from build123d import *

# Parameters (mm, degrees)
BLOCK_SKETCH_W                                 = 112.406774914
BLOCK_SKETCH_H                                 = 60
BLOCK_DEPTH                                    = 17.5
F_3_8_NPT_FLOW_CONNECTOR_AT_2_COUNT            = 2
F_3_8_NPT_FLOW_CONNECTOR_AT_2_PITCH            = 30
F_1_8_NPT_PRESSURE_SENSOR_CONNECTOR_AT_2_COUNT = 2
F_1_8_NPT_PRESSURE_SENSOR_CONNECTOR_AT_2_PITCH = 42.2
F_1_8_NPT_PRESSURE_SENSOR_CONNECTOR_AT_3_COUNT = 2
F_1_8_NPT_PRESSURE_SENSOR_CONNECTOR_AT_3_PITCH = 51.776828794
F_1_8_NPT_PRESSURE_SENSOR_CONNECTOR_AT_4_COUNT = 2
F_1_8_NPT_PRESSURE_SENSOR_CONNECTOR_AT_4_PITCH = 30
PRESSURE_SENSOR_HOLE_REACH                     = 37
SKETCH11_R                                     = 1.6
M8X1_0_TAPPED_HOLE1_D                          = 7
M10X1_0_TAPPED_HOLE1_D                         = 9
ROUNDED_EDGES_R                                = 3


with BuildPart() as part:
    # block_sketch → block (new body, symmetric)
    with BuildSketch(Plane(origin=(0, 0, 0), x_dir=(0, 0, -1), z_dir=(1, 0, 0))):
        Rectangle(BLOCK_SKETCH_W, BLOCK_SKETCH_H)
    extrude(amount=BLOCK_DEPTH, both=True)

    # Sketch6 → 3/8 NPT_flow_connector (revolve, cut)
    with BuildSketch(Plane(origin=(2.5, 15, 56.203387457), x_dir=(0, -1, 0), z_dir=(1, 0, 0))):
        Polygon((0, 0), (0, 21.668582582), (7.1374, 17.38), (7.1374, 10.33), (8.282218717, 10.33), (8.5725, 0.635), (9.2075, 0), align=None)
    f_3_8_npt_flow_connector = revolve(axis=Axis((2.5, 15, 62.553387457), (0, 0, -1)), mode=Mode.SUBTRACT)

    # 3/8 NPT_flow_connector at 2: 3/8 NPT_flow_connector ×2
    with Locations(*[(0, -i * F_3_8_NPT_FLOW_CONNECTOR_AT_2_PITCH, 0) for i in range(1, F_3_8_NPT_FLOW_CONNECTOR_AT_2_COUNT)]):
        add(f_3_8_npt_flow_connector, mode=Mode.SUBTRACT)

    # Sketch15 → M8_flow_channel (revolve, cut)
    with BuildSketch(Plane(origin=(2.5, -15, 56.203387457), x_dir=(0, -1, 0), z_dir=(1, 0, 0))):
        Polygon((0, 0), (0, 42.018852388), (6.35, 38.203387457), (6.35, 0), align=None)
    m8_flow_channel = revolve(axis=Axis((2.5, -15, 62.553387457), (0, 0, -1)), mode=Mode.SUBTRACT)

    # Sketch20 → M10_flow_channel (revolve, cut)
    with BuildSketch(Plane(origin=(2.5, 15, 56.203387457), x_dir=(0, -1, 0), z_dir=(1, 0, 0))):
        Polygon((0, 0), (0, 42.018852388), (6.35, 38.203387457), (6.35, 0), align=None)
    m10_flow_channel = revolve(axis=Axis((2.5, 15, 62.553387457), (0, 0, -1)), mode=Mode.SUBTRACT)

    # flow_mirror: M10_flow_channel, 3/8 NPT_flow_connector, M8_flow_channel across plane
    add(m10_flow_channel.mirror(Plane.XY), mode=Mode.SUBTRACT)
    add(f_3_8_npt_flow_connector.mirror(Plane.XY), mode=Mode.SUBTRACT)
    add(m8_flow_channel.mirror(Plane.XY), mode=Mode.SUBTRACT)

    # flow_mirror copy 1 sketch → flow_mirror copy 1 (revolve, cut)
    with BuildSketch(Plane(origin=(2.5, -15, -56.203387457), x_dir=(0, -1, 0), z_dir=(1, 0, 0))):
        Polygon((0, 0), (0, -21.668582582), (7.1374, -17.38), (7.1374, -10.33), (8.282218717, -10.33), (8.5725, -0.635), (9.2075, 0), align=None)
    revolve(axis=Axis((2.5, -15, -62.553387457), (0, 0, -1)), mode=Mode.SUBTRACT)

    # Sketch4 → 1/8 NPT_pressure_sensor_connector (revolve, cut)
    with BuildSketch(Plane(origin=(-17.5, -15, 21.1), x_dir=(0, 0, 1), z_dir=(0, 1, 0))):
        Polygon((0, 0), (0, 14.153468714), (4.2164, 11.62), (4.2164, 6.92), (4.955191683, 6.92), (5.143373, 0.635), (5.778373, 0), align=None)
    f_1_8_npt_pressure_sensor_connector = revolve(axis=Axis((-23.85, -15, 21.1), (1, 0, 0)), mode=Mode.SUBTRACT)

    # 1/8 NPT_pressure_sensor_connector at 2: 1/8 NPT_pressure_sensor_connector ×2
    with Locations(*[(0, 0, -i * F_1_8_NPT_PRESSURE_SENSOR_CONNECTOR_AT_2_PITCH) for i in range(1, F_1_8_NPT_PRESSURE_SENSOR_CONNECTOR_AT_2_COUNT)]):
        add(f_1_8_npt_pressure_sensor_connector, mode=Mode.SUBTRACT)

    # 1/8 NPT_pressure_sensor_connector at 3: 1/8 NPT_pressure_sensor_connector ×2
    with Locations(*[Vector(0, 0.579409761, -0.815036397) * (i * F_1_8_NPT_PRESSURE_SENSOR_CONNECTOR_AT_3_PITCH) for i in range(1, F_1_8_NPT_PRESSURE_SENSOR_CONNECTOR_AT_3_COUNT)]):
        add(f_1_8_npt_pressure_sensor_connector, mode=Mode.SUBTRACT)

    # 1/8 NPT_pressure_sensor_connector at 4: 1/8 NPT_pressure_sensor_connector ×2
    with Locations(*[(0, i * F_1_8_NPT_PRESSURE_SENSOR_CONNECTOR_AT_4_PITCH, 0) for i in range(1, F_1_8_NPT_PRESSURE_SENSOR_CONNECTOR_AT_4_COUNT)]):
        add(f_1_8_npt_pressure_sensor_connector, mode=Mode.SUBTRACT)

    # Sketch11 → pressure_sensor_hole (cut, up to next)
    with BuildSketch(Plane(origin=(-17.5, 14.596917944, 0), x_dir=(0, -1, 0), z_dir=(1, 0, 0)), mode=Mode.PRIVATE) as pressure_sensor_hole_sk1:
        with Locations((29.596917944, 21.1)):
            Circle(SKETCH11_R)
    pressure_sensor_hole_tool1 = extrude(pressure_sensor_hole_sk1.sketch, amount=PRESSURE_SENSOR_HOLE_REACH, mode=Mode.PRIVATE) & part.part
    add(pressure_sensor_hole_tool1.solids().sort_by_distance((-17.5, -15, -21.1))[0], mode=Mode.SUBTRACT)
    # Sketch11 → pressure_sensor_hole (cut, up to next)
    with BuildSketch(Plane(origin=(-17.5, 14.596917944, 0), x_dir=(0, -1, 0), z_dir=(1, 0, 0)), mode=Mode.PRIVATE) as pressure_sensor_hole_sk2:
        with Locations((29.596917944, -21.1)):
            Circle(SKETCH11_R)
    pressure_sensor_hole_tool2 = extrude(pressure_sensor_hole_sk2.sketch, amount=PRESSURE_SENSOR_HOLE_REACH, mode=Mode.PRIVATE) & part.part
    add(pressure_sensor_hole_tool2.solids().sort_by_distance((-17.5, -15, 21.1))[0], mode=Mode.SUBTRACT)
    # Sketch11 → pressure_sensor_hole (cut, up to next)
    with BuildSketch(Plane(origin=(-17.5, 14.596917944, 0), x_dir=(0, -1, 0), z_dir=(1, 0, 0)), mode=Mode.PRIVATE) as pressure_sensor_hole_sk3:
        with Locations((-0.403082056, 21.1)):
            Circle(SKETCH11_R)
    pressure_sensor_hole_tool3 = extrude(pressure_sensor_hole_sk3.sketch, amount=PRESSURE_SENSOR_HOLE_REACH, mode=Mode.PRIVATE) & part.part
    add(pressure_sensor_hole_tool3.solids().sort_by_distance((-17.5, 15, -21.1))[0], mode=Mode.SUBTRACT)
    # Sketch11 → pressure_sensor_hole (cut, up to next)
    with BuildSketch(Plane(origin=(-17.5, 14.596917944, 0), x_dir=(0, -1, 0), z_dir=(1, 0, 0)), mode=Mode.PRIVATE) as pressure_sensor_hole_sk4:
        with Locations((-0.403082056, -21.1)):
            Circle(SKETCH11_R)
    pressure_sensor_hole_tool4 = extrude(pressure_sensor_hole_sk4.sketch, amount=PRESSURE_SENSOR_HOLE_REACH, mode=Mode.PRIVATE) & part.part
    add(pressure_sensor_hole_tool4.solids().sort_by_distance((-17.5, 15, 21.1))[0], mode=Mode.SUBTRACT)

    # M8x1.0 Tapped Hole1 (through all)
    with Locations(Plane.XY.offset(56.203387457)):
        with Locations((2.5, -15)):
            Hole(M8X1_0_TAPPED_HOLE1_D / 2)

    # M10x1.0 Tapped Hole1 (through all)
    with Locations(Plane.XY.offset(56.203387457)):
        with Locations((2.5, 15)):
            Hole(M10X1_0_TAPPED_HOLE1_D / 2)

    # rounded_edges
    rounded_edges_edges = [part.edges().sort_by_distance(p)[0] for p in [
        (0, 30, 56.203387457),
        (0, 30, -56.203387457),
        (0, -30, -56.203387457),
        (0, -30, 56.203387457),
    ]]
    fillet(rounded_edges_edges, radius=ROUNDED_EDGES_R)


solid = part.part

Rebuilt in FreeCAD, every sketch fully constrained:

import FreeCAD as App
import Part
import Sketcher
from FreeCAD import Vector
Q = App.Units.Quantity


def edges_at(feature, points):
    """Names of the edges that pass closest to the given points."""
    edges = feature.Shape.Edges
    near = lambda p: min(range(len(edges)), key=lambda i: edges[i].distToShape(Part.Vertex(*p))[0])
    return sorted({f"Edge{near(p) + 1}" for p in points})

doc = App.newDocument("Part")
body = doc.addObject("PartDesign::Body", "Body")

sketch1 = body.newObject("Sketcher::SketchObject", "Sketch")
sketch1.AttachmentSupport = (doc.getObject("YZ_Plane"), [""])
sketch1.MapMode = "FlatFace"
sketch1.addGeometry([
    Part.LineSegment(Vector(30, 56, 0), Vector(-30, 56, 0)),
    Part.LineSegment(Vector(-30, 56, 0), Vector(-30, -56, 0)),
    Part.LineSegment(Vector(-30, -56, 0), Vector(30, -56, 0)),
    Part.LineSegment(Vector(30, -56, 0), Vector(30, 56, 0)),
], False)
sketch1.addConstraint([
    Sketcher.Constraint("Coincident", 0, 2, 1, 1),
    Sketcher.Constraint("Coincident", 1, 2, 2, 1),
    Sketcher.Constraint("Coincident", 2, 2, 3, 1),
    Sketcher.Constraint("Coincident", 3, 2, 0, 1),
    Sketcher.Constraint("Horizontal", 0),
    Sketcher.Constraint("Vertical", 1),
    Sketcher.Constraint("Horizontal", 2),
    Sketcher.Constraint("Vertical", 3),
    Sketcher.Constraint("Symmetric", 0, 2, 2, 2, -1, 1),
    Sketcher.Constraint("DistanceX", 0, 2, 0, 1, Q("60 mm")),
    Sketcher.Constraint("DistanceY", 1, 2, 1, 1, Q("112.406775 mm")),
])
pad1 = body.newObject("PartDesign::Pad", "Pad")
pad1.Profile = sketch1
pad1.Length = 35
pad1.Midplane = True

sketch2 = body.newObject("Sketcher::SketchObject", "Sketch001")
sketch2.AttachmentSupport = (doc.getObject("YZ_Plane"), [""])
sketch2.MapMode = "FlatFace"
sketch2.AttachmentOffset = App.Placement(Vector(0, 0, 2.5), App.Rotation())
sketch2.addGeometry([
    Part.LineSegment(Vector(15, 34.5, 0), Vector(15, 56.2, 0)),
    Part.LineSegment(Vector(15, 56.2, 0), Vector(5.8, 56.2, 0)),
    Part.LineSegment(Vector(5.8, 56.2, 0), Vector(6.4, 55.6, 0)),
    Part.LineSegment(Vector(6.4, 55.6, 0), Vector(6.7, 45.9, 0)),
    Part.LineSegment(Vector(6.7, 45.9, 0), Vector(7.9, 45.9, 0)),
    Part.LineSegment(Vector(7.9, 45.9, 0), Vector(7.9, 38.8, 0)),
    Part.LineSegment(Vector(7.9, 38.8, 0), Vector(15, 34.5, 0)),
], False)
sketch2.addGeometry(Part.LineSegment(Vector(15, 56.2, 0), Vector(15, 34.5, 0)), True)
sketch2.addConstraint([
    Sketcher.Constraint("Coincident", 0, 2, 1, 1),
    Sketcher.Constraint("Coincident", 1, 2, 2, 1),
    Sketcher.Constraint("Coincident", 2, 2, 3, 1),
    Sketcher.Constraint("Coincident", 3, 2, 4, 1),
    Sketcher.Constraint("Coincident", 4, 2, 5, 1),
    Sketcher.Constraint("Coincident", 5, 2, 6, 1),
    Sketcher.Constraint("Coincident", 6, 2, 0, 1),
    Sketcher.Constraint("Vertical", 0),
    Sketcher.Constraint("Horizontal", 1),
    Sketcher.Constraint("Horizontal", 4),
    Sketcher.Constraint("Vertical", 5),
    Sketcher.Constraint("Vertical", 7),
    Sketcher.Constraint("Coincident", 7, 1, 0, 2),
    Sketcher.Constraint("Equal", 0, 7),
    Sketcher.Constraint("Angle", 2, Q("-45 deg")),
    Sketcher.Constraint("Angle", 6, Q("-31 deg")),
    Sketcher.Constraint("DistanceX", -1, 1, 0, 2, Q("15 mm")),
    Sketcher.Constraint("DistanceY", 5, 2, 5, 1, Q("7.05 mm")),
    Sketcher.Constraint("DistanceY", 3, 2, 1, 2, Q("10.33 mm")),
    Sketcher.Constraint("DistanceX", 1, 2, 1, 1, Q("9.2075 mm")),
    Sketcher.Constraint("DistanceX", 1, 2, 2, 2, Q("0.635 mm")),
    Sketcher.Constraint("DistanceX", 4, 1, 4, 2, Q("1.144819 mm")),
    Sketcher.Constraint("DistanceX", -1, 1, 4, 2, Q("7.8626 mm")),
    Sketcher.Constraint("DistanceY", -1, 1, 0, 2, Q("56.203387 mm")),
])
groove = body.newObject("PartDesign::Groove", "Groove")
groove.Profile = sketch2
groove.ReferenceAxis = (sketch2, ["Axis0"])
groove.Angle = 360
doc.recompute()

linearpattern = body.newObject("PartDesign::LinearPattern", "LinearPattern")
linearpattern.Originals = [groove]
linearpattern.Direction = (doc.getObject("Y_Axis"), [""])
linearpattern.Mode = "offset"
linearpattern.Offset = 30
linearpattern.Occurrences = 2
linearpattern.Reversed = True
body.Tip = linearpattern

sketch3 = body.newObject("Sketcher::SketchObject", "Sketch002")
sketch3.AttachmentSupport = (doc.getObject("YZ_Plane"), [""])
sketch3.MapMode = "FlatFace"
sketch3.AttachmentOffset = App.Placement(Vector(0, 0, 2.5), App.Rotation())
sketch3.addGeometry([
    Part.LineSegment(Vector(-15, 14, 0), Vector(-15, 56, 0)),
    Part.LineSegment(Vector(-15, 56, 0), Vector(-21, 56, 0)),
    Part.LineSegment(Vector(-21, 56, 0), Vector(-21, 18, 0)),
    Part.LineSegment(Vector(-21, 18, 0), Vector(-15, 14, 0)),
], False)
sketch3.addGeometry(Part.LineSegment(Vector(-15, 56, 0), Vector(-15, 14, 0)), True)
sketch3.addConstraint([
    Sketcher.Constraint("Coincident", 0, 2, 1, 1),
    Sketcher.Constraint("Coincident", 1, 2, 2, 1),
    Sketcher.Constraint("Coincident", 2, 2, 3, 1),
    Sketcher.Constraint("Coincident", 3, 2, 0, 1),
    Sketcher.Constraint("Vertical", 0),
    Sketcher.Constraint("Horizontal", 1),
    Sketcher.Constraint("Vertical", 2),
    Sketcher.Constraint("Vertical", 4),
    Sketcher.Constraint("Coincident", 4, 1, 0, 2),
    Sketcher.Constraint("Equal", 0, 4),
    Sketcher.Constraint("Angle", 3, Q("-31 deg")),
    Sketcher.Constraint("DistanceX", 0, 2, -1, 1, Q("15 mm")),
    Sketcher.Constraint("DistanceY", -1, 1, 2, 2, Q("18 mm")),
    Sketcher.Constraint("DistanceX", 1, 2, 1, 1, Q("6.35 mm")),
    Sketcher.Constraint("DistanceY", 0, 1, 0, 2, Q("42.018852 mm")),
])
groove2 = body.newObject("PartDesign::Groove", "Groove001")
groove2.Profile = sketch3
groove2.ReferenceAxis = (sketch3, ["Axis0"])
groove2.Angle = 360

sketch4 = body.newObject("Sketcher::SketchObject", "Sketch003")
sketch4.AttachmentSupport = (doc.getObject("YZ_Plane"), [""])
sketch4.MapMode = "FlatFace"
sketch4.AttachmentOffset = App.Placement(Vector(0, 0, 2.5), App.Rotation())
sketch4.addGeometry([
    Part.LineSegment(Vector(15, 14, 0), Vector(15, 56, 0)),
    Part.LineSegment(Vector(15, 56, 0), Vector(9, 56, 0)),
    Part.LineSegment(Vector(9, 56, 0), Vector(9, 18, 0)),
    Part.LineSegment(Vector(9, 18, 0), Vector(15, 14, 0)),
], False)
sketch4.addGeometry(Part.LineSegment(Vector(15, 56, 0), Vector(15, 14, 0)), True)
sketch4.addConstraint([
    Sketcher.Constraint("Coincident", 0, 2, 1, 1),
    Sketcher.Constraint("Coincident", 1, 2, 2, 1),
    Sketcher.Constraint("Coincident", 2, 2, 3, 1),
    Sketcher.Constraint("Coincident", 3, 2, 0, 1),
    Sketcher.Constraint("Vertical", 0),
    Sketcher.Constraint("Horizontal", 1),
    Sketcher.Constraint("Vertical", 2),
    Sketcher.Constraint("Vertical", 4),
    Sketcher.Constraint("Coincident", 4, 1, 0, 2),
    Sketcher.Constraint("Equal", 0, 4),
    Sketcher.Constraint("Angle", 3, Q("-31 deg")),
    Sketcher.Constraint("DistanceX", -1, 1, 0, 2, Q("15 mm")),
    Sketcher.Constraint("DistanceY", -1, 1, 2, 2, Q("18 mm")),
    Sketcher.Constraint("DistanceX", 1, 2, 1, 1, Q("6.35 mm")),
    Sketcher.Constraint("DistanceY", 0, 1, 0, 2, Q("42.018852 mm")),
])
groove3 = body.newObject("PartDesign::Groove", "Groove002")
groove3.Profile = sketch4
groove3.ReferenceAxis = (sketch4, ["Axis0"])
groove3.Angle = 360
doc.recompute()

mirrored = body.newObject("PartDesign::Mirrored", "Mirrored")
mirrored.Originals = [groove3, groove, groove2]
mirrored.MirrorPlane = (doc.getObject("XY_Plane"), [""])
body.Tip = mirrored

sketch5 = body.newObject("Sketcher::SketchObject", "Sketch004")
sketch5.AttachmentSupport = (doc.getObject("YZ_Plane"), [""])
sketch5.MapMode = "FlatFace"
sketch5.AttachmentOffset = App.Placement(Vector(0, 0, 2.5), App.Rotation())
sketch5.addGeometry([
    Part.LineSegment(Vector(-15, -56.2, 0), Vector(-15, -34.5, 0)),
    Part.LineSegment(Vector(-15, -34.5, 0), Vector(-22.1, -38.8, 0)),
    Part.LineSegment(Vector(-22.1, -38.8, 0), Vector(-22.1, -45.9, 0)),
    Part.LineSegment(Vector(-22.1, -45.9, 0), Vector(-23.3, -45.9, 0)),
    Part.LineSegment(Vector(-23.3, -45.9, 0), Vector(-23.6, -55.6, 0)),
    Part.LineSegment(Vector(-23.6, -55.6, 0), Vector(-24.2, -56.2, 0)),
    Part.LineSegment(Vector(-24.2, -56.2, 0), Vector(-15, -56.2, 0)),
], False)
sketch5.addGeometry(Part.LineSegment(Vector(-15, -34.5, 0), Vector(-15, -56.2, 0)), True)
sketch5.addConstraint([
    Sketcher.Constraint("Coincident", 0, 2, 1, 1),
    Sketcher.Constraint("Coincident", 1, 2, 2, 1),
    Sketcher.Constraint("Coincident", 2, 2, 3, 1),
    Sketcher.Constraint("Coincident", 3, 2, 4, 1),
    Sketcher.Constraint("Coincident", 4, 2, 5, 1),
    Sketcher.Constraint("Coincident", 5, 2, 6, 1),
    Sketcher.Constraint("Coincident", 6, 2, 0, 1),
    Sketcher.Constraint("Vertical", 0),
    Sketcher.Constraint("Vertical", 2),
    Sketcher.Constraint("Horizontal", 3),
    Sketcher.Constraint("Horizontal", 6),
    Sketcher.Constraint("Vertical", 7),
    Sketcher.Constraint("Coincident", 7, 1, 0, 2),
    Sketcher.Constraint("Horizontal", 5, 2, 7, 2),
    Sketcher.Constraint("Angle", 1, Q("-149 deg")),
    Sketcher.Constraint("Angle", 5, Q("-135 deg")),
    Sketcher.Constraint("DistanceX", 0, 2, -1, 1, Q("15 mm")),
    Sketcher.Constraint("DistanceY", 2, 2, 2, 1, Q("7.05 mm")),
    Sketcher.Constraint("DistanceY", 5, 2, 3, 2, Q("10.33 mm")),
    Sketcher.Constraint("DistanceX", 6, 1, 6, 2, Q("9.2075 mm")),
    Sketcher.Constraint("DistanceY", 4, 2, 3, 2, Q("9.695 mm")),
    Sketcher.Constraint("DistanceX", 3, 2, 3, 1, Q("1.144819 mm")),
    Sketcher.Constraint("DistanceX", 1, 2, -1, 1, Q("22.1374 mm")),
    Sketcher.Constraint("DistanceY", 0, 2, -1, 1, Q("34.534805 mm")),
])
groove4 = body.newObject("PartDesign::Groove", "Groove003")
groove4.Profile = sketch5
groove4.ReferenceAxis = (sketch5, ["Axis0"])
groove4.Angle = 360

sketch6 = body.newObject("Sketcher::SketchObject", "Sketch005")
sketch6.AttachmentSupport = (doc.getObject("XZ_Plane"), [""])
sketch6.MapMode = "FlatFace"
sketch6.AttachmentOffset = App.Placement(Vector(0, 0, 15), App.Rotation())
sketch6.addGeometry([
    Part.LineSegment(Vector(-3.3, 21.1, 0), Vector(-17.5, 21.1, 0)),
    Part.LineSegment(Vector(-17.5, 21.1, 0), Vector(-17.5, 26.9, 0)),
    Part.LineSegment(Vector(-17.5, 26.9, 0), Vector(-16.9, 26.2, 0)),
    Part.LineSegment(Vector(-16.9, 26.2, 0), Vector(-10.6, 26.1, 0)),
    Part.LineSegment(Vector(-10.6, 26.1, 0), Vector(-10.6, 25.3, 0)),
    Part.LineSegment(Vector(-10.6, 25.3, 0), Vector(-5.9, 25.3, 0)),
    Part.LineSegment(Vector(-5.9, 25.3, 0), Vector(-3.3, 21.1, 0)),
], False)
sketch6.addGeometry(Part.LineSegment(Vector(-17.5, 21.1, 0), Vector(-3.3, 21.1, 0)), True)
sketch6.addConstraint([
    Sketcher.Constraint("Coincident", 0, 2, 1, 1),
    Sketcher.Constraint("Coincident", 1, 2, 2, 1),
    Sketcher.Constraint("Coincident", 2, 2, 3, 1),
    Sketcher.Constraint("Coincident", 3, 2, 4, 1),
    Sketcher.Constraint("Coincident", 4, 2, 5, 1),
    Sketcher.Constraint("Coincident", 5, 2, 6, 1),
    Sketcher.Constraint("Coincident", 6, 2, 0, 1),
    Sketcher.Constraint("Horizontal", 0),
    Sketcher.Constraint("Vertical", 1),
    Sketcher.Constraint("Vertical", 4),
    Sketcher.Constraint("Horizontal", 5),
    Sketcher.Constraint("Horizontal", 7),
    Sketcher.Constraint("Coincident", 7, 1, 0, 2),
    Sketcher.Constraint("Equal", 0, 7),
    Sketcher.Constraint("Angle", 2, Q("-45 deg")),
    Sketcher.Constraint("Angle", 6, Q("-59 deg")),
    Sketcher.Constraint("DistanceX", 5, 1, 5, 2, Q("4.7 mm")),
    Sketcher.Constraint("DistanceX", 0, 2, -1, 1, Q("17.5 mm")),
    Sketcher.Constraint("DistanceY", -1, 1, 0, 2, Q("21.1 mm")),
    Sketcher.Constraint("DistanceX", 3, 2, -1, 1, Q("10.58 mm")),
    Sketcher.Constraint("DistanceX", 2, 2, -1, 1, Q("16.865 mm")),
    Sketcher.Constraint("DistanceX", 0, 2, 0, 1, Q("14.153469 mm")),
    Sketcher.Constraint("DistanceY", 4, 2, 4, 1, Q("0.738792 mm")),
    Sketcher.Constraint("DistanceY", 1, 1, 1, 2, Q("5.778373 mm")),
])
groove5 = body.newObject("PartDesign::Groove", "Groove004")
groove5.Profile = sketch6
groove5.ReferenceAxis = (sketch6, ["Axis0"])
groove5.Angle = 360
doc.recompute()

linearpattern2 = body.newObject("PartDesign::LinearPattern", "LinearPattern001")
linearpattern2.Originals = [groove5]
linearpattern2.Direction = (doc.getObject("Z_Axis"), [""])
linearpattern2.Mode = "offset"
linearpattern2.Offset = 42.2
linearpattern2.Occurrences = 2
linearpattern2.Reversed = True
body.Tip = linearpattern2
doc.recompute()

datumline = body.newObject("PartDesign::Line", "DatumLine")
datumline.Placement = App.Placement(Vector(0, 0, 0), App.Rotation(Vector(0, 0, 1), Vector(0, 0.579409761, -0.815036397)))
linearpattern3 = body.newObject("PartDesign::LinearPattern", "LinearPattern002")
linearpattern3.Originals = [groove5]
linearpattern3.Direction = (datumline, [""])
linearpattern3.Mode = "offset"
linearpattern3.Offset = 51.776829
linearpattern3.Occurrences = 2
body.Tip = linearpattern3
doc.recompute()

linearpattern4 = body.newObject("PartDesign::LinearPattern", "LinearPattern003")
linearpattern4.Originals = [groove5]
linearpattern4.Direction = (doc.getObject("Y_Axis"), [""])
linearpattern4.Mode = "offset"
linearpattern4.Offset = 30
linearpattern4.Occurrences = 2
body.Tip = linearpattern4

sketch7 = body.newObject("Sketcher::SketchObject", "Sketch006")
sketch7.AttachmentSupport = (doc.getObject("YZ_Plane"), [""])
sketch7.MapMode = "FlatFace"
sketch7.AttachmentOffset = App.Placement(Vector(0, 0, -17.5), App.Rotation())
sketch7.addGeometry(Part.Circle(Vector(-15, -21.1, 0), Vector(0, 0, 1), 1.6), False)
sketch7.addConstraint([
    Sketcher.Constraint("Diameter", 0, Q("3.2 mm")),
    Sketcher.Constraint("DistanceX", 0, 3, -1, 1, Q("15 mm")),
    Sketcher.Constraint("DistanceY", 0, 3, -1, 1, Q("21.1 mm")),
])
pocket1 = body.newObject("PartDesign::Pocket", "Pocket")
pocket1.Profile = sketch7
pocket1.Type = "UpToFirst"
pocket1.Reversed = True

sketch8 = body.newObject("Sketcher::SketchObject", "Sketch007")
sketch8.AttachmentSupport = (doc.getObject("YZ_Plane"), [""])
sketch8.MapMode = "FlatFace"
sketch8.AttachmentOffset = App.Placement(Vector(0, 0, -17.5), App.Rotation())
sketch8.addGeometry(Part.Circle(Vector(-15, 21.1, 0), Vector(0, 0, 1), 1.6), False)
sketch8.addConstraint([
    Sketcher.Constraint("Diameter", 0, Q("3.2 mm")),
    Sketcher.Constraint("DistanceX", 0, 3, -1, 1, Q("15 mm")),
    Sketcher.Constraint("DistanceY", -1, 1, 0, 3, Q("21.1 mm")),
])
pocket2 = body.newObject("PartDesign::Pocket", "Pocket001")
pocket2.Profile = sketch8
pocket2.Type = "UpToFirst"
pocket2.Reversed = True

sketch9 = body.newObject("Sketcher::SketchObject", "Sketch008")
sketch9.AttachmentSupport = (doc.getObject("YZ_Plane"), [""])
sketch9.MapMode = "FlatFace"
sketch9.AttachmentOffset = App.Placement(Vector(0, 0, -17.5), App.Rotation())
sketch9.addGeometry(Part.Circle(Vector(15, -21.1, 0), Vector(0, 0, 1), 1.6), False)
sketch9.addConstraint([
    Sketcher.Constraint("Diameter", 0, Q("3.2 mm")),
    Sketcher.Constraint("DistanceX", -1, 1, 0, 3, Q("15 mm")),
    Sketcher.Constraint("DistanceY", 0, 3, -1, 1, Q("21.1 mm")),
])
pocket3 = body.newObject("PartDesign::Pocket", "Pocket002")
pocket3.Profile = sketch9
pocket3.Type = "UpToFirst"
pocket3.Reversed = True

sketch10 = body.newObject("Sketcher::SketchObject", "Sketch009")
sketch10.AttachmentSupport = (doc.getObject("YZ_Plane"), [""])
sketch10.MapMode = "FlatFace"
sketch10.AttachmentOffset = App.Placement(Vector(0, 0, -17.5), App.Rotation())
sketch10.addGeometry(Part.Circle(Vector(15, 21.1, 0), Vector(0, 0, 1), 1.6), False)
sketch10.addConstraint([
    Sketcher.Constraint("Diameter", 0, Q("3.2 mm")),
    Sketcher.Constraint("DistanceX", -1, 1, 0, 3, Q("15 mm")),
    Sketcher.Constraint("DistanceY", -1, 1, 0, 3, Q("21.1 mm")),
])
pocket4 = body.newObject("PartDesign::Pocket", "Pocket003")
pocket4.Profile = sketch10
pocket4.Type = "UpToFirst"
pocket4.Reversed = True

sketch11 = body.newObject("Sketcher::SketchObject", "Sketch010")
sketch11.AttachmentSupport = (doc.getObject("XY_Plane"), [""])
sketch11.MapMode = "FlatFace"
sketch11.AttachmentOffset = App.Placement(Vector(0, 0, 56.203387), App.Rotation())
sketch11.addGeometry(Part.Circle(Vector(2.5, -15, 0), Vector(0, 0, 1), 3.5), False)
sketch11.addConstraint([
    Sketcher.Constraint("Diameter", 0, Q("7 mm")),
    Sketcher.Constraint("DistanceY", 0, 3, -1, 1, Q("15 mm")),
    Sketcher.Constraint("DistanceX", -1, 1, 0, 3, Q("2.5 mm")),
])
doc.recompute()
hole = body.newObject("PartDesign::Hole", "Hole")
hole.Profile = sketch11
hole.ThreadType = "None"
hole.Diameter = 7
hole.DepthType = "ThroughAll"

sketch12 = body.newObject("Sketcher::SketchObject", "Sketch011")
sketch12.AttachmentSupport = (doc.getObject("XY_Plane"), [""])
sketch12.MapMode = "FlatFace"
sketch12.AttachmentOffset = App.Placement(Vector(0, 0, 56.203387), App.Rotation())
sketch12.addGeometry(Part.Circle(Vector(2.5, 15, 0), Vector(0, 0, 1), 4.5), False)
sketch12.addConstraint([
    Sketcher.Constraint("Diameter", 0, Q("9 mm")),
    Sketcher.Constraint("DistanceY", -1, 1, 0, 3, Q("15 mm")),
    Sketcher.Constraint("DistanceX", -1, 1, 0, 3, Q("2.5 mm")),
])
doc.recompute()
hole2 = body.newObject("PartDesign::Hole", "Hole001")
hole2.Profile = sketch12
hole2.ThreadType = "None"
hole2.Diameter = 9
hole2.DepthType = "ThroughAll"
doc.recompute()

fillet = body.newObject("PartDesign::Fillet", "Fillet")
fillet.Base = (hole2, edges_at(hole2, [
    (0, 30, 56.203),
    (0, 30, -56.203),
    (0, -30, -56.203),
    (0, -30, 56.203),
]))
fillet.Radius = 3

doc.recompute()
